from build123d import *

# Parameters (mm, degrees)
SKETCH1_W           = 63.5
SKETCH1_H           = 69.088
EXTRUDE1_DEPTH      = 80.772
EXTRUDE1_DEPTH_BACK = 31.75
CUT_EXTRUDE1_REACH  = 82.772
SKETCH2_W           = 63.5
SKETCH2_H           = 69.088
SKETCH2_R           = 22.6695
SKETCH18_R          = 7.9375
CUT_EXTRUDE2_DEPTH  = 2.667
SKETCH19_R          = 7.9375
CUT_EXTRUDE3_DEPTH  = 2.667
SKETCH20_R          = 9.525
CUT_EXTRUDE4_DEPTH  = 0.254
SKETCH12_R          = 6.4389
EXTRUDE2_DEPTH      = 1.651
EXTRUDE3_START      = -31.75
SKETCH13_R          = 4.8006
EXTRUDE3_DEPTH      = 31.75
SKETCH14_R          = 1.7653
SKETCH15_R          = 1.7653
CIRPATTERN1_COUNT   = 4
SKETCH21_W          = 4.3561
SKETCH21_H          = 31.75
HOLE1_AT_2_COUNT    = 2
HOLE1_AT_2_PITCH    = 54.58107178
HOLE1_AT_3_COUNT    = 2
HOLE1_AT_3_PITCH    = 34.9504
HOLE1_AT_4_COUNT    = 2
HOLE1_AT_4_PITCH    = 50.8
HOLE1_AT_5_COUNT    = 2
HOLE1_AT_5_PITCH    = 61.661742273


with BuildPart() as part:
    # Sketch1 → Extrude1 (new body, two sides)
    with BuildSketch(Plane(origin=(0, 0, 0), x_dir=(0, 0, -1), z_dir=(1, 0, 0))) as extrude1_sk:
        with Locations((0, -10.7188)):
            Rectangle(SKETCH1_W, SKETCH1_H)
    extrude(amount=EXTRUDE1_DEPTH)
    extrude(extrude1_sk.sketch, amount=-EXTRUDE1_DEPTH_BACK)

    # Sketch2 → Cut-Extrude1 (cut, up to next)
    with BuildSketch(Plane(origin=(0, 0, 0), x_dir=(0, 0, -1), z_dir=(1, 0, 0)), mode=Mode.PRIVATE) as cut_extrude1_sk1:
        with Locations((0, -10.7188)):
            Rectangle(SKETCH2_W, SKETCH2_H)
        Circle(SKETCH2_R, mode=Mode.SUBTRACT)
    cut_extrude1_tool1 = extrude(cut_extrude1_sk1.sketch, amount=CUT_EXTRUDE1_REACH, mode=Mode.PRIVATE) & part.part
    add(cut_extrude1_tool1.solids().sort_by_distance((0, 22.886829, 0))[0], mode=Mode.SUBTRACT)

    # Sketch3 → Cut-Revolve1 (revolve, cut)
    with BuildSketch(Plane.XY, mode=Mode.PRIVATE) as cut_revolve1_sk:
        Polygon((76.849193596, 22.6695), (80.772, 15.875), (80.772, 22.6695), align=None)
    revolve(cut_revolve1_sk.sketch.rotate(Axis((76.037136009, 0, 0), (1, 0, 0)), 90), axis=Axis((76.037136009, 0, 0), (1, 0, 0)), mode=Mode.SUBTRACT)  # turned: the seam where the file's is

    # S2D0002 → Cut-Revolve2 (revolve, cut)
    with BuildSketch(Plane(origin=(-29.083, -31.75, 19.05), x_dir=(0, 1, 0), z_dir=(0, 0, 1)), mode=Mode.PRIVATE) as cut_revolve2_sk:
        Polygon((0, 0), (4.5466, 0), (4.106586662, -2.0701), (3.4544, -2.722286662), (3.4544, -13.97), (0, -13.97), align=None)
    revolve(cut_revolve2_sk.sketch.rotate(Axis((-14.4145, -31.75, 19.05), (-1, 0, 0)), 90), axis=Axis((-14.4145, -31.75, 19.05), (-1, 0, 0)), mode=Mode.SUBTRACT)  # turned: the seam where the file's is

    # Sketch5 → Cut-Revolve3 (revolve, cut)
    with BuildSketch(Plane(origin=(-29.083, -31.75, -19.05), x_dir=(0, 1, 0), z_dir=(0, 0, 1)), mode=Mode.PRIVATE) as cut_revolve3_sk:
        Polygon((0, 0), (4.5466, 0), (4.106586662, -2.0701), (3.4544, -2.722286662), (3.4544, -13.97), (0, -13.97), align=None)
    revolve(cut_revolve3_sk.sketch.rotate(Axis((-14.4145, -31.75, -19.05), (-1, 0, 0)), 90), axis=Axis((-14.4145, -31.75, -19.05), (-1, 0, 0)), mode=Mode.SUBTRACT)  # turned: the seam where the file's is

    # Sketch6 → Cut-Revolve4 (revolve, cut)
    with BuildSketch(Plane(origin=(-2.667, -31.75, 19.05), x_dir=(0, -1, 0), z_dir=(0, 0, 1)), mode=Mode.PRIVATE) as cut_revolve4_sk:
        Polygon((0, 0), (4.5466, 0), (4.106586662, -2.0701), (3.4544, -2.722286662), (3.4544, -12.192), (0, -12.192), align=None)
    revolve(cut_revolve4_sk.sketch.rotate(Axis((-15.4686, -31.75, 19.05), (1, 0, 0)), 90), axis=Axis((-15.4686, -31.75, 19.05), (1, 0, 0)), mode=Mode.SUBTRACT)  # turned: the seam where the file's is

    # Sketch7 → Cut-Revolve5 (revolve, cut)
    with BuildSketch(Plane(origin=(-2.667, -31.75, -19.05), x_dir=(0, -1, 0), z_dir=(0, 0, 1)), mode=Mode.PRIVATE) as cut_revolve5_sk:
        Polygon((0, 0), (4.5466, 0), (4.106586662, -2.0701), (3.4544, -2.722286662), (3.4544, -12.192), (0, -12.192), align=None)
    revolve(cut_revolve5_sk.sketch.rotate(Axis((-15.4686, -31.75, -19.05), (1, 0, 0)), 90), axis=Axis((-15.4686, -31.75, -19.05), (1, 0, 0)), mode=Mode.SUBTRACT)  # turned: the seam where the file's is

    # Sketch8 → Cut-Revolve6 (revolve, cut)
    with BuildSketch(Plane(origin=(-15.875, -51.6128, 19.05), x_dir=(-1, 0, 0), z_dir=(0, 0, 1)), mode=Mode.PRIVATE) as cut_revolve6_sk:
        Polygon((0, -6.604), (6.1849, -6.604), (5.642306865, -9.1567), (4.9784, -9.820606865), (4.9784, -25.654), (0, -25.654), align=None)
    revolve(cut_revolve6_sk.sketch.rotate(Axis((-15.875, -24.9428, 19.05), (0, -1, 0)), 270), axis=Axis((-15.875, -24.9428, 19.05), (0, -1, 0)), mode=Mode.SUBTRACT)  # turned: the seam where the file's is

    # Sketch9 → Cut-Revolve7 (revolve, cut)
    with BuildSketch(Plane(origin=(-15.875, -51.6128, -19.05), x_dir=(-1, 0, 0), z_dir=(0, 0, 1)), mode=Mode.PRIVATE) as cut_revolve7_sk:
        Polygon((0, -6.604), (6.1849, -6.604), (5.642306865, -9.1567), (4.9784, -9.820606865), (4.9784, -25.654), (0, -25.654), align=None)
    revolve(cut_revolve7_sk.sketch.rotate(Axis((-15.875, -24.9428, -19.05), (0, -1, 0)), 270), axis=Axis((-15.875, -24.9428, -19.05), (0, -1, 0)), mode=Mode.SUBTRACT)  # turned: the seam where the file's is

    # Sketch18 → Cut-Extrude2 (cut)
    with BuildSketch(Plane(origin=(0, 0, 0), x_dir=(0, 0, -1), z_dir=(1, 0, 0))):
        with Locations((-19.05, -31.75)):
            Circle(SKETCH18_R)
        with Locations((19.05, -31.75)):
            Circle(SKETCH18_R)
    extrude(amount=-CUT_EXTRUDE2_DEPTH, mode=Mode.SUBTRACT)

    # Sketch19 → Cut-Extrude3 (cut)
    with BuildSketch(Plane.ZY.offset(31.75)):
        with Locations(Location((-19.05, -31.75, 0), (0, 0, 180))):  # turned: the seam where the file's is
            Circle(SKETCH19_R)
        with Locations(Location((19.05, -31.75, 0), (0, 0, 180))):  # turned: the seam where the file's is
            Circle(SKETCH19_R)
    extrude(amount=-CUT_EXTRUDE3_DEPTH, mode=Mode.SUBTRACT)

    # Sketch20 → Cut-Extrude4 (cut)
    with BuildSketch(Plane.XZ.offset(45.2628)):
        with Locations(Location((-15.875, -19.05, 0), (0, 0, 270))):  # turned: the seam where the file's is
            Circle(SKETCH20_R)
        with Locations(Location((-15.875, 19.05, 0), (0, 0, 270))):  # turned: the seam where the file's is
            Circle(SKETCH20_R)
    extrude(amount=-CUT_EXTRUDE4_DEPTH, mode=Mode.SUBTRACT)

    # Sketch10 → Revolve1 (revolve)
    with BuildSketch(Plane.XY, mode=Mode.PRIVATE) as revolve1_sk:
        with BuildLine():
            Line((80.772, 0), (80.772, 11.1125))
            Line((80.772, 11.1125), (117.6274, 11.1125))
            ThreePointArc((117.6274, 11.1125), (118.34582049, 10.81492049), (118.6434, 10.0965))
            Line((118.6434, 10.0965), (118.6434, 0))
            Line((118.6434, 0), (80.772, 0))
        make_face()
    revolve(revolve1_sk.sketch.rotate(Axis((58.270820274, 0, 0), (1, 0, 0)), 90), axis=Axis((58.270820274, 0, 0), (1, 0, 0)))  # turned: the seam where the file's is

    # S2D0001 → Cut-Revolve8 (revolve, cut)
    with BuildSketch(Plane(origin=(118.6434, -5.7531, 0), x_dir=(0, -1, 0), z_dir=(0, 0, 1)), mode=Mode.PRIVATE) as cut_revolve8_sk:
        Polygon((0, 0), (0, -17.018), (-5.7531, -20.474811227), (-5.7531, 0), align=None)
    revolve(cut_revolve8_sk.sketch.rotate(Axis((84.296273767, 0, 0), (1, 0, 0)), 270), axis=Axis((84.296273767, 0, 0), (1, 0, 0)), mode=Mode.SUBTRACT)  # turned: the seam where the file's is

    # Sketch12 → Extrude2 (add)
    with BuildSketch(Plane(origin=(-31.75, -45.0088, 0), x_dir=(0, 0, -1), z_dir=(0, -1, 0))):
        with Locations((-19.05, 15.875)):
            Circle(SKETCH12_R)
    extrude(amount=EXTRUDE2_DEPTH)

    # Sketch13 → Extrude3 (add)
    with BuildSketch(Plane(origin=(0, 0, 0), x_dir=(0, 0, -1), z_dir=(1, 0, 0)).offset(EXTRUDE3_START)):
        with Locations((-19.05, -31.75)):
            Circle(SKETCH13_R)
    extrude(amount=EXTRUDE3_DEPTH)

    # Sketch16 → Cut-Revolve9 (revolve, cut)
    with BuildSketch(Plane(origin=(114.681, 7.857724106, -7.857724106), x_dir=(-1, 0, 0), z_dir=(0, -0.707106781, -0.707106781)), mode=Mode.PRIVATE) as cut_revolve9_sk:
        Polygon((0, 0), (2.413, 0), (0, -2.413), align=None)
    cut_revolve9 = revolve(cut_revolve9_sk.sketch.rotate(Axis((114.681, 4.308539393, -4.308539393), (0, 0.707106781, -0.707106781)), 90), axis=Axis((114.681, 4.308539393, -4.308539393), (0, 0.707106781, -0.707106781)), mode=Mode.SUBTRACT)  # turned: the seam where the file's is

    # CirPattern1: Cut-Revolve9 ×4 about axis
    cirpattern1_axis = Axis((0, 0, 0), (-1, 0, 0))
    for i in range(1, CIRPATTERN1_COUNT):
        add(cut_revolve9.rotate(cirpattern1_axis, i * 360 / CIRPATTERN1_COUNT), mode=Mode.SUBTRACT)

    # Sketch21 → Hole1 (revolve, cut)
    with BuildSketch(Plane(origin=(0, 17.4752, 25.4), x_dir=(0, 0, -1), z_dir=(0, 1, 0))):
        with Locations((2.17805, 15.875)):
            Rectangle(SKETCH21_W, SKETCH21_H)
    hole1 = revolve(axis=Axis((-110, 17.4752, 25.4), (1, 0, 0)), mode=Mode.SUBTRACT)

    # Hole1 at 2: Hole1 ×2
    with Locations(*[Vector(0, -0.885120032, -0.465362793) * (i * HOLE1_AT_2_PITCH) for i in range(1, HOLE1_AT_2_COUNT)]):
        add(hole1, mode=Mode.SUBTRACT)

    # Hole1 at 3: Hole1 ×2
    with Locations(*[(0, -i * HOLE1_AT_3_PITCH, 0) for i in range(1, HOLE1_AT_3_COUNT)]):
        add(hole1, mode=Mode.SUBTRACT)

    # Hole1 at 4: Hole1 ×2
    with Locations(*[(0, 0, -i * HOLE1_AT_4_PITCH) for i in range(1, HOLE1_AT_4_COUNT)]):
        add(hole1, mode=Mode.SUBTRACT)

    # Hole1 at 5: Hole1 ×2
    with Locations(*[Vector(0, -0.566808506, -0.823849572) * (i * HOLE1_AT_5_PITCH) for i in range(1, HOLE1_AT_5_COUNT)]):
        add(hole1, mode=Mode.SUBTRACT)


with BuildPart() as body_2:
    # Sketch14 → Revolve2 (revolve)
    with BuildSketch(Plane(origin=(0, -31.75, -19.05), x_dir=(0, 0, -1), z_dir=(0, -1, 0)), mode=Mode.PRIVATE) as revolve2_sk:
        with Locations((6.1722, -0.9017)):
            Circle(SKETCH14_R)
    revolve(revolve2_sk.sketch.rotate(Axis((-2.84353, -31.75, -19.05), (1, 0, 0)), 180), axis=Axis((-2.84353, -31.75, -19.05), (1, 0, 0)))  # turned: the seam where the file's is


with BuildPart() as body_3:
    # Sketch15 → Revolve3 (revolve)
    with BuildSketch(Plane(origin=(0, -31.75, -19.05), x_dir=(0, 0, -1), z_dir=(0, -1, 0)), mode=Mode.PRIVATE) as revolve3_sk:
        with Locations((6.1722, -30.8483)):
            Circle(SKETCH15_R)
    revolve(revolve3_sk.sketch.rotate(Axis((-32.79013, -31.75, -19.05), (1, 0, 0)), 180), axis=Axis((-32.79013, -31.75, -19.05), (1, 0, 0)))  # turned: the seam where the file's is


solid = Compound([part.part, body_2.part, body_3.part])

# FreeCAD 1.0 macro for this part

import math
import FreeCAD as App
import Part
import Sketcher
from FreeCAD import Vector
Q = App.Units.Quantity

doc = App.newDocument("Part")
body = doc.addObject("PartDesign::Body", "Body")

# Sketch on YZ plane
sketch1 = doc.addObject("Sketcher::SketchObject", "Sketch")
body.addObject(sketch1)
sketch1.AttachmentSupport = (doc.YZ_Plane, [""])
sketch1.MapMode = "FlatFace"
sketch1.addGeometry(Part.LineSegment(Vector(24, 32, 0), Vector(-45, 32, 0)), False)
sketch1.addGeometry(Part.LineSegment(Vector(-45, 32, 0), Vector(-45, -32, 0)), False)
sketch1.addGeometry(Part.LineSegment(Vector(-45, -32, 0), Vector(24, -32, 0)), False)
sketch1.addGeometry(Part.LineSegment(Vector(24, -32, 0), Vector(24, 32, 0)), False)
sketch1.addConstraint(Sketcher.Constraint("Coincident", 0, 2, 1, 1))
sketch1.addConstraint(Sketcher.Constraint("Coincident", 1, 2, 2, 1))
sketch1.addConstraint(Sketcher.Constraint("Coincident", 2, 2, 3, 1))
sketch1.addConstraint(Sketcher.Constraint("Coincident", 3, 2, 0, 1))
sketch1.addConstraint(Sketcher.Constraint("Horizontal", 0))
sketch1.addConstraint(Sketcher.Constraint("Vertical", 1))
sketch1.addConstraint(Sketcher.Constraint("Horizontal", 2))
sketch1.addConstraint(Sketcher.Constraint("Vertical", 3))
sketch1.addConstraint(Sketcher.Constraint("DistanceY", 1, 2, 1, 1, Q("2.5 in")))
sketch1.addConstraint(Sketcher.Constraint("DistanceX", 0, 2, 0, 1, Q("2.72 in")))
sketch1.addConstraint(Sketcher.Constraint("DistanceY", -1, 1, 0, 2, Q("1.25 in")))
sketch1.addConstraint(Sketcher.Constraint("DistanceX", 0, 2, -1, 1, Q("1.782 in")))
pad1 = doc.addObject("PartDesign::Pad", "Pad")
body.addObject(pad1)
pad1.Profile = sketch1
pad1.Type = "TwoLengths"
pad1.Length = Q("3.18 in")
pad1.Length2 = Q("1.25 in")

# Sketch on YZ plane
sketch2 = doc.addObject("Sketcher::SketchObject", "Sketch001")
body.addObject(sketch2)
sketch2.AttachmentSupport = (doc.YZ_Plane, [""])
sketch2.MapMode = "FlatFace"
sketch2.addGeometry(Part.LineSegment(Vector(24, 32, 0), Vector(-45, 32, 0)), False)
sketch2.addGeometry(Part.LineSegment(Vector(-45, 32, 0), Vector(-45, -32, 0)), False)
sketch2.addGeometry(Part.LineSegment(Vector(-45, -32, 0), Vector(24, -32, 0)), False)
sketch2.addGeometry(Part.LineSegment(Vector(24, -32, 0), Vector(24, 32, 0)), False)
sketch2.addGeometry(Part.Circle(Vector(0, 0, 0), Vector(0, 0, 1), 23), False)
sketch2.addConstraint(Sketcher.Constraint("Coincident", 0, 2, 1, 1))
sketch2.addConstraint(Sketcher.Constraint("Coincident", 1, 2, 2, 1))
sketch2.addConstraint(Sketcher.Constraint("Coincident", 2, 2, 3, 1))
sketch2.addConstraint(Sketcher.Constraint("Coincident", 3, 2, 0, 1))
sketch2.addConstraint(Sketcher.Constraint("Horizontal", 0))
sketch2.addConstraint(Sketcher.Constraint("Vertical", 1))
sketch2.addConstraint(Sketcher.Constraint("Horizontal", 2))
sketch2.addConstraint(Sketcher.Constraint("Vertical", 3))
sketch2.addConstraint(Sketcher.Constraint("Coincident", 4, 3, -1, 1))
sketch2.addConstraint(Sketcher.Constraint("Diameter", 4, Q("1.785 in")))
sketch2.addConstraint(Sketcher.Constraint("DistanceY", 1, 2, 1, 1, Q("2.5 in")))
sketch2.addConstraint(Sketcher.Constraint("DistanceX", 0, 2, 0, 1, Q("2.72 in")))
sketch2.addConstraint(Sketcher.Constraint("DistanceY", -1, 1, 0, 2, Q("1.25 in")))
sketch2.addConstraint(Sketcher.Constraint("DistanceX", 0, 2, -1, 1, Q("1.782 in")))
pocket1 = doc.addObject("PartDesign::Pocket", "Pocket")
body.addObject(pocket1)
pocket1.Profile = sketch2
pocket1.Type = "UpToFirst"
pocket1.Reversed = True

# Sketch on XY plane
sketch3 = doc.addObject("Sketcher::SketchObject", "Sketch002")
body.addObject(sketch3)
sketch3.AttachmentSupport = (doc.XY_Plane, [""])
sketch3.MapMode = "FlatFace"
sketch3.addGeometry(Part.LineSegment(Vector(76.8, 22.7, 0), Vector(80.8, 15.9, 0)), False)
sketch3.addGeometry(Part.LineSegment(Vector(80.8, 15.9, 0), Vector(80.8, 22.7, 0)), False)
sketch3.addGeometry(Part.LineSegment(Vector(80.8, 22.7, 0), Vector(76.8, 22.7, 0)), False)
sketch3.addConstraint(Sketcher.Constraint("Coincident", 0, 2, 1, 1))
sketch3.addConstraint(Sketcher.Constraint("Coincident", 1, 2, 2, 1))
sketch3.addConstraint(Sketcher.Constraint("Coincident", 2, 2, 0, 1))
sketch3.addConstraint(Sketcher.Constraint("Vertical", 1))
sketch3.addConstraint(Sketcher.Constraint("Horizontal", 2))
sketch3.addConstraint(Sketcher.Constraint("Angle", 0, Q("-60 deg")))
sketch3.addConstraint(Sketcher.Constraint("DistanceX", -1, 1, 0, 2, Q("3.18 in")))
sketch3.addConstraint(Sketcher.Constraint("DistanceY", 1, 1, 1, 2, Q("0.2675 in")))
sketch3.addConstraint(Sketcher.Constraint("DistanceY", -1, 1, 0, 2, Q("0.625 in")))
groove = doc.addObject("PartDesign::Groove", "Groove")
body.addObject(groove)
groove.Profile = sketch3
groove.ReferenceAxis = (sketch3, ["H_Axis"])
groove.Angle = 360

# Sketch on XY plane
sketch4 = doc.addObject("Sketcher::SketchObject", "Sketch003")
body.addObject(sketch4)
sketch4.AttachmentSupport = (doc.XY_Plane, [""])
sketch4.MapMode = "FlatFace"
sketch4.AttachmentOffset = App.Placement(Vector(0, 0, 0.75 * 25.4), App.Rotation())
sketch4.addGeometry(Part.LineSegment(Vector(-29.1, -27.2, 0), Vector(-29.1, -31.8, 0)), False)
sketch4.addGeometry(Part.LineSegment(Vector(-29.1, -31.8, 0), Vector(-15.1, -31.8, 0)), False)
sketch4.addGeometry(Part.LineSegment(Vector(-15.1, -31.8, 0), Vector(-15.1, -28.3, 0)), False)
sketch4.addGeometry(Part.LineSegment(Vector(-15.1, -28.3, 0), Vector(-26.4, -28.3, 0)), False)
sketch4.addGeometry(Part.LineSegment(Vector(-26.4, -28.3, 0), Vector(-27, -27.6, 0)), False)
sketch4.addGeometry(Part.LineSegment(Vector(-27, -27.6, 0), Vector(-29.1, -27.2, 0)), False)
sketch4.addGeometry(Part.LineSegment(Vector(-15.1, -31.8, 0), Vector(-29.1, -31.8, 0)), True)  # axis
sketch4.addConstraint(Sketcher.Constraint("Coincident", 0, 2, 1, 1))
sketch4.addConstraint(Sketcher.Constraint("Coincident", 1, 2, 2, 1))
sketch4.addConstraint(Sketcher.Constraint("Coincident", 2, 2, 3, 1))
sketch4.addConstraint(Sketcher.Constraint("Coincident", 3, 2, 4, 1))
sketch4.addConstraint(Sketcher.Constraint("Coincident", 4, 2, 5, 1))
sketch4.addConstraint(Sketcher.Constraint("Coincident", 5, 2, 0, 1))
sketch4.addConstraint(Sketcher.Constraint("Vertical", 0))
sketch4.addConstraint(Sketcher.Constraint("Horizontal", 1))
sketch4.addConstraint(Sketcher.Constraint("Vertical", 2))
sketch4.addConstraint(Sketcher.Constraint("Horizontal", 3))
sketch4.addConstraint(Sketcher.Constraint("Horizontal", 6))
sketch4.addConstraint(Sketcher.Constraint("Coincident", 6, 1, 1, 2))
sketch4.addConstraint(Sketcher.Constraint("Vertical", 5, 2, 6, 2))
sketch4.addConstraint(Sketcher.Constraint("Angle", 4, Q("135 deg")))
sketch4.addConstraint(Sketcher.Constraint("Angle", 5, Q("168 deg")))
sketch4.addConstraint(Sketcher.Constraint("DistanceX", 1, 1, 1, 2, Q("0.55 in")))
sketch4.addConstraint(Sketcher.Constraint("DistanceY", 0, 2, 0, 1, Q("0.179 in")))
sketch4.addConstraint(Sketcher.Constraint("DistanceY", 2, 1, 2, 2, Q("0.136 in")))
sketch4.addConstraint(Sketcher.Constraint("DistanceY", 0, 2, -1, 1, Q("1.25 in")))
sketch4.addConstraint(Sketcher.Constraint("DistanceX", 0, 2, -1, 1, Q("1.145 in")))
sketch4.addConstraint(Sketcher.Constraint("DistanceX", 4, 2, -1, 1, Q("1.0635 in")))
groove2 = doc.addObject("PartDesign::Groove", "Groove001")
body.addObject(groove2)
groove2.Profile = sketch4
groove2.ReferenceAxis = (sketch4, ["Axis0"])
groove2.Angle = 360

# Sketch on XY plane
sketch5 = doc.addObject("Sketcher::SketchObject", "Sketch004")
body.addObject(sketch5)
sketch5.AttachmentSupport = (doc.XY_Plane, [""])
sketch5.MapMode = "FlatFace"
sketch5.AttachmentOffset = App.Placement(Vector(0, 0, -0.75 * 25.4), App.Rotation())
sketch5.addGeometry(Part.LineSegment(Vector(-29.1, -27.2, 0), Vector(-29.1, -31.8, 0)), False)
sketch5.addGeometry(Part.LineSegment(Vector(-29.1, -31.8, 0), Vector(-15.1, -31.8, 0)), False)
sketch5.addGeometry(Part.LineSegment(Vector(-15.1, -31.8, 0), Vector(-15.1, -28.3, 0)), False)
sketch5.addGeometry(Part.LineSegment(Vector(-15.1, -28.3, 0), Vector(-26.4, -28.3, 0)), False)
sketch5.addGeometry(Part.LineSegment(Vector(-26.4, -28.3, 0), Vector(-27, -27.6, 0)), False)
sketch5.addGeometry(Part.LineSegment(Vector(-27, -27.6, 0), Vector(-29.1, -27.2, 0)), False)
sketch5.addGeometry(Part.LineSegment(Vector(-15.1, -31.8, 0), Vector(-29.1, -31.8, 0)), True)  # axis
sketch5.addConstraint(Sketcher.Constraint("Coincident", 0, 2, 1, 1))
sketch5.addConstraint(Sketcher.Constraint("Coincident", 1, 2, 2, 1))
sketch5.addConstraint(Sketcher.Constraint("Coincident", 2, 2, 3, 1))
sketch5.addConstraint(Sketcher.Constraint("Coincident", 3, 2, 4, 1))
sketch5.addConstraint(Sketcher.Constraint("Coincident", 4, 2, 5, 1))
sketch5.addConstraint(Sketcher.Constraint("Coincident", 5, 2, 0, 1))
sketch5.addConstraint(Sketcher.Constraint("Vertical", 0))
sketch5.addConstraint(Sketcher.Constraint("Horizontal", 1))
sketch5.addConstraint(Sketcher.Constraint("Vertical", 2))
sketch5.addConstraint(Sketcher.Constraint("Horizontal", 3))
sketch5.addConstraint(Sketcher.Constraint("Horizontal", 6))
sketch5.addConstraint(Sketcher.Constraint("Coincident", 6, 1, 1, 2))
sketch5.addConstraint(Sketcher.Constraint("Vertical", 5, 2, 6, 2))
sketch5.addConstraint(Sketcher.Constraint("Angle", 4, Q("135 deg")))
sketch5.addConstraint(Sketcher.Constraint("Angle", 5, Q("168 deg")))
sketch5.addConstraint(Sketcher.Constraint("DistanceX", 1, 1, 1, 2, Q("0.55 in")))
sketch5.addConstraint(Sketcher.Constraint("DistanceY", 0, 2, 0, 1, Q("0.179 in")))
sketch5.addConstraint(Sketcher.Constraint("DistanceY", 2, 1, 2, 2, Q("0.136 in")))
sketch5.addConstraint(Sketcher.Constraint("DistanceY", 0, 2, -1, 1, Q("1.25 in")))
sketch5.addConstraint(Sketcher.Constraint("DistanceX", 0, 2, -1, 1, Q("1.145 in")))
sketch5.addConstraint(Sketcher.Constraint("DistanceX", 4, 2, -1, 1, Q("1.0635 in")))
groove3 = doc.addObject("PartDesign::Groove", "Groove002")
body.addObject(groove3)
groove3.Profile = sketch5
groove3.ReferenceAxis = (sketch5, ["Axis0"])
groove3.Angle = 360

# Sketch on XY plane
sketch6 = doc.addObject("Sketcher::SketchObject", "Sketch005")
body.addObject(sketch6)
sketch6.AttachmentSupport = (doc.XY_Plane, [""])
sketch6.MapMode = "FlatFace"
sketch6.AttachmentOffset = App.Placement(Vector(0, 0, 0.75 * 25.4), App.Rotation())
sketch6.addGeometry(Part.LineSegment(Vector(-2.7, -36.3, 0), Vector(-2.7, -31.8, 0)), False)
sketch6.addGeometry(Part.LineSegment(Vector(-2.7, -31.8, 0), Vector(-14.9, -31.8, 0)), False)
sketch6.addGeometry(Part.LineSegment(Vector(-14.9, -31.8, 0), Vector(-14.9, -35.2, 0)), False)
sketch6.addGeometry(Part.LineSegment(Vector(-14.9, -35.2, 0), Vector(-5.4, -35.2, 0)), False)
sketch6.addGeometry(Part.LineSegment(Vector(-5.4, -35.2, 0), Vector(-4.7, -35.9, 0)), False)
sketch6.addGeometry(Part.LineSegment(Vector(-4.7, -35.9, 0), Vector(-2.7, -36.3, 0)), False)
sketch6.addGeometry(Part.LineSegment(Vector(-14.9, -31.8, 0), Vector(-2.7, -31.8, 0)), True)  # axis
sketch6.addConstraint(Sketcher.Constraint("Coincident", 0, 2, 1, 1))
sketch6.addConstraint(Sketcher.Constraint("Coincident", 1, 2, 2, 1))
sketch6.addConstraint(Sketcher.Constraint("Coincident", 2, 2, 3, 1))
sketch6.addConstraint(Sketcher.Constraint("Coincident", 3, 2, 4, 1))
sketch6.addConstraint(Sketcher.Constraint("Coincident", 4, 2, 5, 1))
sketch6.addConstraint(Sketcher.Constraint("Coincident", 5, 2, 0, 1))
sketch6.addConstraint(Sketcher.Constraint("Vertical", 0))
sketch6.addConstraint(Sketcher.Constraint("Horizontal", 1))
sketch6.addConstraint(Sketcher.Constraint("Vertical", 2))
sketch6.addConstraint(Sketcher.Constraint("Horizontal", 3))
sketch6.addConstraint(Sketcher.Constraint("Horizontal", 6))
sketch6.addConstraint(Sketcher.Constraint("Coincident", 6, 1, 1, 2))
sketch6.addConstraint(Sketcher.Constraint("Vertical", 5, 2, 6, 2))
sketch6.addConstraint(Sketcher.Constraint("Angle", 4, Q("-45 deg")))
sketch6.addConstraint(Sketcher.Constraint("Angle", 5, Q("-12 deg")))
sketch6.addConstraint(Sketcher.Constraint("DistanceX", 1, 2, 1, 1, Q("0.48 in")))
sketch6.addConstraint(Sketcher.Constraint("DistanceY", 0, 1, 0, 2, Q("0.179 in")))
sketch6.addConstraint(Sketcher.Constraint("DistanceY", 2, 2, 2, 1, Q("0.136 in")))
sketch6.addConstraint(Sketcher.Constraint("DistanceY", 0, 2, -1, 1, Q("1.25 in")))
sketch6.addConstraint(Sketcher.Constraint("DistanceX", 0, 2, -1, 1, Q("0.105 in")))
sketch6.addConstraint(Sketcher.Constraint("DistanceX", 4, 2, -1, 1, Q("0.1865 in")))
groove4 = doc.addObject("PartDesign::Groove", "Groove003")
body.addObject(groove4)
groove4.Profile = sketch6
groove4.ReferenceAxis = (sketch6, ["Axis0"])
groove4.Angle = 360

# Sketch on XY plane
sketch7 = doc.addObject("Sketcher::SketchObject", "Sketch006")
body.addObject(sketch7)
sketch7.AttachmentSupport = (doc.XY_Plane, [""])
sketch7.MapMode = "FlatFace"
sketch7.AttachmentOffset = App.Placement(Vector(0, 0, -0.75 * 25.4), App.Rotation())
sketch7.addGeometry(Part.LineSegment(Vector(-2.7, -36.3, 0), Vector(-2.7, -31.8, 0)), False)
sketch7.addGeometry(Part.LineSegment(Vector(-2.7, -31.8, 0), Vector(-14.9, -31.8, 0)), False)
sketch7.addGeometry(Part.LineSegment(Vector(-14.9, -31.8, 0), Vector(-14.9, -35.2, 0)), False)
sketch7.addGeometry(Part.LineSegment(Vector(-14.9, -35.2, 0), Vector(-5.4, -35.2, 0)), False)
sketch7.addGeometry(Part.LineSegment(Vector(-5.4, -35.2, 0), Vector(-4.7, -35.9, 0)), False)
sketch7.addGeometry(Part.LineSegment(Vector(-4.7, -35.9, 0), Vector(-2.7, -36.3, 0)), False)
sketch7.addGeometry(Part.LineSegment(Vector(-14.9, -31.8, 0), Vector(-2.7, -31.8, 0)), True)  # axis
sketch7.addConstraint(Sketcher.Constraint("Coincident", 0, 2, 1, 1))
sketch7.addConstraint(Sketcher.Constraint("Coincident", 1, 2, 2, 1))
sketch7.addConstraint(Sketcher.Constraint("Coincident", 2, 2, 3, 1))
sketch7.addConstraint(Sketcher.Constraint("Coincident", 3, 2, 4, 1))
sketch7.addConstraint(Sketcher.Constraint("Coincident", 4, 2, 5, 1))
sketch7.addConstraint(Sketcher.Constraint("Coincident", 5, 2, 0, 1))
sketch7.addConstraint(Sketcher.Constraint("Vertical", 0))
sketch7.addConstraint(Sketcher.Constraint("Horizontal", 1))
sketch7.addConstraint(Sketcher.Constraint("Vertical", 2))
sketch7.addConstraint(Sketcher.Constraint("Horizontal", 3))
sketch7.addConstraint(Sketcher.Constraint("Horizontal", 6))
sketch7.addConstraint(Sketcher.Constraint("Coincident", 6, 1, 1, 2))
sketch7.addConstraint(Sketcher.Constraint("Vertical", 5, 2, 6, 2))
sketch7.addConstraint(Sketcher.Constraint("Angle", 4, Q("-45 deg")))
sketch7.addConstraint(Sketcher.Constraint("Angle", 5, Q("-12 deg")))
sketch7.addConstraint(Sketcher.Constraint("DistanceX", 1, 2, 1, 1, Q("0.48 in")))
sketch7.addConstraint(Sketcher.Constraint("DistanceY", 0, 1, 0, 2, Q("0.179 in")))
sketch7.addConstraint(Sketcher.Constraint("DistanceY", 2, 2, 2, 1, Q("0.136 in")))
sketch7.addConstraint(Sketcher.Constraint("DistanceY", 0, 2, -1, 1, Q("1.25 in")))
sketch7.addConstraint(Sketcher.Constraint("DistanceX", 0, 2, -1, 1, Q("0.105 in")))
sketch7.addConstraint(Sketcher.Constraint("DistanceX", 4, 2, -1, 1, Q("0.1865 in")))
groove5 = doc.addObject("PartDesign::Groove", "Groove004")
body.addObject(groove5)
groove5.Profile = sketch7
groove5.ReferenceAxis = (sketch7, ["Axis0"])
groove5.Angle = 360

# Sketch on XY plane
sketch8 = doc.addObject("Sketcher::SketchObject", "Sketch007")
body.addObject(sketch8)
sketch8.AttachmentSupport = (doc.XY_Plane, [""])
sketch8.MapMode = "FlatFace"
sketch8.AttachmentOffset = App.Placement(Vector(0, 0, 0.75 * 25.4), App.Rotation())
sketch8.addGeometry(Part.LineSegment(Vector(-22.1, -45, 0), Vector(-15.9, -45, 0)), False)
sketch8.addGeometry(Part.LineSegment(Vector(-15.9, -45, 0), Vector(-15.9, -26, 0)), False)
sketch8.addGeometry(Part.LineSegment(Vector(-15.9, -26, 0), Vector(-20.9, -26, 0)), False)
sketch8.addGeometry(Part.LineSegment(Vector(-20.9, -26, 0), Vector(-20.9, -41.8, 0)), False)
sketch8.addGeometry(Part.LineSegment(Vector(-20.9, -41.8, 0), Vector(-21.5, -42.5, 0)), False)
sketch8.addGeometry(Part.LineSegment(Vector(-21.5, -42.5, 0), Vector(-22.1, -45, 0)), False)
sketch8.addGeometry(Part.LineSegment(Vector(-15.9, -26, 0), Vector(-15.9, -45, 0)), True)  # axis
sketch8.addConstraint(Sketcher.Constraint("Coincident", 0, 2, 1, 1))
sketch8.addConstraint(Sketcher.Constraint("Coincident", 1, 2, 2, 1))
sketch8.addConstraint(Sketcher.Constraint("Coincident", 2, 2, 3, 1))
sketch8.addConstraint(Sketcher.Constraint("Coincident", 3, 2, 4, 1))
sketch8.addConstraint(Sketcher.Constraint("Coincident", 4, 2, 5, 1))
sketch8.addConstraint(Sketcher.Constraint("Coincident", 5, 2, 0, 1))
sketch8.addConstraint(Sketcher.Constraint("Horizontal", 0))
sketch8.addConstraint(Sketcher.Constraint("Vertical", 1))
sketch8.addConstraint(Sketcher.Constraint("Horizontal", 2))
sketch8.addConstraint(Sketcher.Constraint("Vertical", 3))
sketch8.addConstraint(Sketcher.Constraint("Vertical", 6))
sketch8.addConstraint(Sketcher.Constraint("Coincident", 6, 1, 1, 2))
sketch8.addConstraint(Sketcher.Constraint("Horizontal", 5, 2, 6, 2))
sketch8.addConstraint(Sketcher.Constraint("Angle", 4, Q("-135 deg")))
sketch8.addConstraint(Sketcher.Constraint("Angle", 5, Q("-102 deg")))
sketch8.addConstraint(Sketcher.Constraint("DistanceY", 1, 1, 1, 2, Q("0.75 in")))
sketch8.addConstraint(Sketcher.Constraint("DistanceX", 2, 2, 2, 1, Q("0.196 in")))
sketch8.addConstraint(Sketcher.Constraint("DistanceX", 0, 1, 0, 2, Q("0.2435 in")))
sketch8.addConstraint(Sketcher.Constraint("DistanceX", 0, 2, -1, 1, Q("0.625 in")))
sketch8.addConstraint(Sketcher.Constraint("DistanceY", 0, 2, -1, 1, Q("1.772 in")))
sketch8.addConstraint(Sketcher.Constraint("DistanceY", 4, 2, -1, 1, Q("1.6715 in")))
groove6 = doc.addObject("PartDesign::Groove", "Groove005")
body.addObject(groove6)
groove6.Profile = sketch8
groove6.ReferenceAxis = (sketch8, ["Axis0"])
groove6.Angle = 360

# Sketch on XY plane
sketch9 = doc.addObject("Sketcher::SketchObject", "Sketch008")
body.addObject(sketch9)
sketch9.AttachmentSupport = (doc.XY_Plane, [""])
sketch9.MapMode = "FlatFace"
sketch9.AttachmentOffset = App.Placement(Vector(0, 0, -0.75 * 25.4), App.Rotation())
sketch9.addGeometry(Part.LineSegment(Vector(-22.1, -45, 0), Vector(-15.9, -45, 0)), False)
sketch9.addGeometry(Part.LineSegment(Vector(-15.9, -45, 0), Vector(-15.9, -26, 0)), False)
sketch9.addGeometry(Part.LineSegment(Vector(-15.9, -26, 0), Vector(-20.9, -26, 0)), False)
sketch9.addGeometry(Part.LineSegment(Vector(-20.9, -26, 0), Vector(-20.9, -41.8, 0)), False)
sketch9.addGeometry(Part.LineSegment(Vector(-20.9, -41.8, 0), Vector(-21.5, -42.5, 0)), False)
sketch9.addGeometry(Part.LineSegment(Vector(-21.5, -42.5, 0), Vector(-22.1, -45, 0)), False)
sketch9.addGeometry(Part.LineSegment(Vector(-15.9, -26, 0), Vector(-15.9, -45, 0)), True)  # axis
sketch9.addConstraint(Sketcher.Constraint("Coincident", 0, 2, 1, 1))
sketch9.addConstraint(Sketcher.Constraint("Coincident", 1, 2, 2, 1))
sketch9.addConstraint(Sketcher.Constraint("Coincident", 2, 2, 3, 1))
sketch9.addConstraint(Sketcher.Constraint("Coincident", 3, 2, 4, 1))
sketch9.addConstraint(Sketcher.Constraint("Coincident", 4, 2, 5, 1))
sketch9.addConstraint(Sketcher.Constraint("Coincident", 5, 2, 0, 1))
sketch9.addConstraint(Sketcher.Constraint("Horizontal", 0))
sketch9.addConstraint(Sketcher.Constraint("Vertical", 1))
sketch9.addConstraint(Sketcher.Constraint("Horizontal", 2))
sketch9.addConstraint(Sketcher.Constraint("Vertical", 3))
sketch9.addConstraint(Sketcher.Constraint("Vertical", 6))
sketch9.addConstraint(Sketcher.Constraint("Coincident", 6, 1, 1, 2))
sketch9.addConstraint(Sketcher.Constraint("Horizontal", 5, 2, 6, 2))
sketch9.addConstraint(Sketcher.Constraint("Angle", 4, Q("-135 deg")))
sketch9.addConstraint(Sketcher.Constraint("Angle", 5, Q("-102 deg")))
sketch9.addConstraint(Sketcher.Constraint("DistanceY", 1, 1, 1, 2, Q("0.75 in")))
sketch9.addConstraint(Sketcher.Constraint("DistanceX", 2, 2, 2, 1, Q("0.196 in")))
sketch9.addConstraint(Sketcher.Constraint("DistanceX", 0, 1, 0, 2, Q("0.2435 in")))
sketch9.addConstraint(Sketcher.Constraint("DistanceX", 0, 2, -1, 1, Q("0.625 in")))
sketch9.addConstraint(Sketcher.Constraint("DistanceY", 0, 2, -1, 1, Q("1.772 in")))
sketch9.addConstraint(Sketcher.Constraint("DistanceY", 4, 2, -1, 1, Q("1.6715 in")))
groove7 = doc.addObject("PartDesign::Groove", "Groove006")
body.addObject(groove7)
groove7.Profile = sketch9
groove7.ReferenceAxis = (sketch9, ["Axis0"])
groove7.Angle = 360

# Sketch on YZ plane
sketch10 = doc.addObject("Sketcher::SketchObject", "Sketch009")
body.addObject(sketch10)
sketch10.AttachmentSupport = (doc.YZ_Plane, [""])
sketch10.MapMode = "FlatFace"
sketch10.addGeometry(Part.Circle(Vector(-32, 19, 0), Vector(0, 0, 1), 8), False)
sketch10.addGeometry(Part.Circle(Vector(-32, -19, 0), Vector(0, 0, 1), 8), False)
sketch10.addConstraint(Sketcher.Constraint("Equal", 0, 1))
sketch10.addConstraint(Sketcher.Constraint("Symmetric", 0, 3, 1, 3, -1))
sketch10.addConstraint(Sketcher.Constraint("Diameter", 0, Q("0.625 in")))
sketch10.addConstraint(Sketcher.Constraint("DistanceY", 1, 3, 0, 3, Q("1.5 in")))
sketch10.addConstraint(Sketcher.Constraint("DistanceX", 0, 3, -1, 1, Q("1.25 in")))
pocket2 = doc.addObject("PartDesign::Pocket", "Pocket001")
body.addObject(pocket2)
pocket2.Profile = sketch10
pocket2.Length = Q("0.105 in")

# Sketch on YZ plane
sketch11 = doc.addObject("Sketcher::SketchObject", "Sketch010")
body.addObject(sketch11)
sketch11.AttachmentSupport = (doc.YZ_Plane, [""])
sketch11.MapMode = "FlatFace"
sketch11.AttachmentOffset = App.Placement(Vector(0, 0, -1.25 * 25.4), App.Rotation())
sketch11.addGeometry(Part.Circle(Vector(-32, -19, 0), Vector(0, 0, 1), 8), False)
sketch11.addGeometry(Part.Circle(Vector(-32, 19, 0), Vector(0, 0, 1), 8), False)
sketch11.addConstraint(Sketcher.Constraint("Equal", 0, 1))
sketch11.addConstraint(Sketcher.Constraint("Symmetric", 0, 3, 1, 3, -1))
sketch11.addConstraint(Sketcher.Constraint("Diameter", 0, Q("0.625 in")))
sketch11.addConstraint(Sketcher.Constraint("DistanceY", 0, 3, 1, 3, Q("1.5 in")))
sketch11.addConstraint(Sketcher.Constraint("DistanceX", 0, 3, -1, 1, Q("1.25 in")))
pocket3 = doc.addObject("PartDesign::Pocket", "Pocket002")
body.addObject(pocket3)
pocket3.Profile = sketch11
pocket3.Length = Q("0.105 in")
pocket3.Reversed = True

# Sketch on XZ plane
sketch12 = doc.addObject("Sketcher::SketchObject", "Sketch011")
body.addObject(sketch12)
sketch12.AttachmentSupport = (doc.XZ_Plane, [""])
sketch12.MapMode = "FlatFace"
sketch12.AttachmentOffset = App.Placement(Vector(0, 0, 1.782 * 25.4), App.Rotation())
sketch12.addGeometry(Part.Circle(Vector(-16, -19, 0), Vector(0, 0, 1), 10), False)
sketch12.addGeometry(Part.Circle(Vector(-16, 19, 0), Vector(0, 0, 1), 10), False)
sketch12.addConstraint(Sketcher.Constraint("Equal", 0, 1))
sketch12.addConstraint(Sketcher.Constraint("Symmetric", 0, 3, 1, 3, -1))
sketch12.addConstraint(Sketcher.Constraint("Diameter", 0, Q("0.75 in")))
sketch12.addConstraint(Sketcher.Constraint("DistanceY", 0, 3, 1, 3, Q("1.5 in")))
sketch12.addConstraint(Sketcher.Constraint("DistanceX", 0, 3, -1, 1, Q("0.625 in")))
pocket4 = doc.addObject("PartDesign::Pocket", "Pocket003")
body.addObject(pocket4)
pocket4.Profile = sketch12
pocket4.Length = Q("0.01 in")

# Sketch on XY plane
sketch13 = doc.addObject("Sketcher::SketchObject", "Sketch012")
body.addObject(sketch13)
sketch13.AttachmentSupport = (doc.XY_Plane, [""])
sketch13.MapMode = "FlatFace"
sketch13.addGeometry(Part.LineSegment(Vector(80.8, 11.1, 0), Vector(80.8, 0, 0)), False)
sketch13.addGeometry(Part.LineSegment(Vector(80.8, 0, 0), Vector(118.6, 0, 0)), False)
sketch13.addGeometry(Part.LineSegment(Vector(118.6, 0, 0), Vector(118.6, 10.1, 0)), False)
sketch13.addGeometry(Part.ArcOfCircle(Part.Circle(Vector(117.6, 10.1, 0), Vector(0, 0, 1), 1), math.radians(0), math.radians(90)), False)
sketch13.addGeometry(Part.LineSegment(Vector(117.6, 11.1, 0), Vector(80.8, 11.1, 0)), False)
sketch13.addConstraint(Sketcher.Constraint("Coincident", 0, 2, 1, 1))
sketch13.addConstraint(Sketcher.Constraint("Coincident", 1, 2, 2, 1))
sketch13.addConstraint(Sketcher.Constraint("Tangent", 2, 2, 3, 1))
sketch13.addConstraint(Sketcher.Constraint("Tangent", 3, 2, 4, 1))
sketch13.addConstraint(Sketcher.Constraint("Coincident", 4, 2, 0, 1))
sketch13.addConstraint(Sketcher.Constraint("Vertical", 0))
sketch13.addConstraint(Sketcher.Constraint("Horizontal", 1))
sketch13.addConstraint(Sketcher.Constraint("Vertical", 2))
sketch13.addConstraint(Sketcher.Constraint("Horizontal", 4))
sketch13.addConstraint(Sketcher.Constraint("PointOnObject", 0, 2, -1))
sketch13.addConstraint(Sketcher.Constraint("Radius", 3, Q("0.04 in")))
sketch13.addConstraint(Sketcher.Constraint("DistanceX", 1, 1, 1, 2, Q("1.491 in")))
sketch13.addConstraint(Sketcher.Constraint("DistanceY", 0, 2, 0, 1, Q("0.4375 in")))
sketch13.addConstraint(Sketcher.Constraint("DistanceX", -1, 1, 0, 2, Q("3.18 in")))
revolution = doc.addObject("PartDesign::Revolution", "Revolution")
body.addObject(revolution)
revolution.Profile = sketch13
revolution.ReferenceAxis = (sketch13, ["H_Axis"])
revolution.Angle = 360

# Sketch on XY plane
sketch14 = doc.addObject("Sketcher::SketchObject", "Sketch013")
body.addObject(sketch14)
sketch14.AttachmentSupport = (doc.XY_Plane, [""])
sketch14.MapMode = "FlatFace"
sketch14.addGeometry(Part.LineSegment(Vector(102, -6, 0), Vector(119, -6, 0)), False)
sketch14.addGeometry(Part.LineSegment(Vector(119, -6, 0), Vector(119, 0, 0)), False)
sketch14.addGeometry(Part.LineSegment(Vector(119, 0, 0), Vector(98, 0, 0)), False)
sketch14.addGeometry(Part.LineSegment(Vector(98, 0, 0), Vector(102, -6, 0)), False)
sketch14.addConstraint(Sketcher.Constraint("Coincident", 0, 2, 1, 1))
sketch14.addConstraint(Sketcher.Constraint("Coincident", 1, 2, 2, 1))
sketch14.addConstraint(Sketcher.Constraint("Coincident", 2, 2, 3, 1))
sketch14.addConstraint(Sketcher.Constraint("Coincident", 3, 2, 0, 1))
sketch14.addConstraint(Sketcher.Constraint("Horizontal", 0))
sketch14.addConstraint(Sketcher.Constraint("Vertical", 1))
sketch14.addConstraint(Sketcher.Constraint("Horizontal", 2))
sketch14.addConstraint(Sketcher.Constraint("PointOnObject", 1, 2, -1))
sketch14.addConstraint(Sketcher.Constraint("Angle", 3, Q("-59 deg")))
sketch14.addConstraint(Sketcher.Constraint("DistanceX", 0, 1, 0, 2, Q("0.67 in")))
sketch14.addConstraint(Sketcher.Constraint("DistanceY", 1, 1, 1, 2, Q("0.2265 in")))
sketch14.addConstraint(Sketcher.Constraint("DistanceX", -1, 1, 0, 2, Q("4.671 in")))
groove8 = doc.addObject("PartDesign::Groove", "Groove007")
body.addObject(groove8)
groove8.Profile = sketch14
groove8.ReferenceAxis = (sketch14, ["H_Axis"])
groove8.Angle = 360

# Sketch on XZ plane
sketch15 = doc.addObject("Sketcher::SketchObject", "Sketch014")
body.addObject(sketch15)
sketch15.AttachmentSupport = (doc.XZ_Plane, [""])
sketch15.MapMode = "FlatFace"
sketch15.AttachmentOffset = App.Placement(Vector(0, 0, 1.772 * 25.4), App.Rotation())
sketch15.addGeometry(Part.Circle(Vector(-16, 19, 0), Vector(0, 0, 1), 6), False)
sketch15.addConstraint(Sketcher.Constraint("Diameter", 0, Q("0.507 in")))
sketch15.addConstraint(Sketcher.Constraint("DistanceY", -1, 1, 0, 3, Q("0.75 in")))
sketch15.addConstraint(Sketcher.Constraint("DistanceX", 0, 3, -1, 1, Q("0.625 in")))
pad2 = doc.addObject("PartDesign::Pad", "Pad001")
body.addObject(pad2)
pad2.Profile = sketch15
pad2.Length = Q("0.065 in")

# Sketch on YZ plane
sketch16 = doc.addObject("Sketcher::SketchObject", "Sketch015")
body.addObject(sketch16)
sketch16.AttachmentSupport = (doc.YZ_Plane, [""])
sketch16.MapMode = "FlatFace"
sketch16.AttachmentOffset = App.Placement(Vector(0, 0, -1.25 * 25.4), App.Rotation())
sketch16.addGeometry(Part.Circle(Vector(-31.8, 19.1, 0), Vector(0, 0, 1), 4.8), False)
sketch16.addConstraint(Sketcher.Constraint("Diameter", 0, Q("0.378 in")))
sketch16.addConstraint(Sketcher.Constraint("DistanceX", 0, 3, -1, 1, Q("1.25 in")))
sketch16.addConstraint(Sketcher.Constraint("DistanceY", -1, 1, 0, 3, Q("0.75 in")))
pad3 = doc.addObject("PartDesign::Pad", "Pad002")
body.addObject(pad3)
pad3.Profile = sketch16
pad3.Length = Q("1.25 in")

# Sketch on an angled plane
sketch17 = doc.addObject("Sketcher::SketchObject", "Sketch016")
body.addObject(sketch17)
sketch17.Placement = App.Placement(Vector(114.681, 7.857724, -7.857724), App.Rotation(Vector(-1, 0, 0), Vector(0, 0.707106781, -0.707106781), Vector(0, -0.707106781, -0.707106781), "ZXY"))
sketch17.addGeometry(Part.LineSegment(Vector(2.4, 0, 0), Vector(0, 0, 0)), False)
sketch17.addGeometry(Part.LineSegment(Vector(0, 0, 0), Vector(0, -2.4, 0)), False)
sketch17.addGeometry(Part.LineSegment(Vector(0, -2.4, 0), Vector(2.4, 0, 0)), False)
sketch17.addConstraint(Sketcher.Constraint("Coincident", 0, 2, 1, 1))
sketch17.addConstraint(Sketcher.Constraint("Coincident", 1, 2, 2, 1))
sketch17.addConstraint(Sketcher.Constraint("Coincident", 2, 2, 0, 1))
sketch17.addConstraint(Sketcher.Constraint("Horizontal", 0))
sketch17.addConstraint(Sketcher.Constraint("Vertical", 1))
sketch17.addConstraint(Sketcher.Constraint("Coincident", 0, 2, -1, 1))
sketch17.addConstraint(Sketcher.Constraint("Equal", 0, 1))
sketch17.addConstraint(Sketcher.Constraint("DistanceX", 0, 2, 0, 1, Q("0.095 in")))
groove9 = doc.addObject("PartDesign::Groove", "Groove008")
body.addObject(groove9)
groove9.Profile = sketch17
groove9.ReferenceAxis = (sketch17, ["V_Axis"])
groove9.Angle = 360
doc.recompute()

polarpattern = doc.addObject("PartDesign::PolarPattern", "PolarPattern")
body.addObject(polarpattern)
polarpattern.Originals = [groove9]
polarpattern.Axis = (doc.X_Axis, [""])
polarpattern.Angle = 360
polarpattern.Occurrences = 4
body.Tip = polarpattern

# Sketch on XZ plane
sketch18 = doc.addObject("Sketcher::SketchObject", "Sketch017")
body.addObject(sketch18)
sketch18.AttachmentSupport = (doc.XZ_Plane, [""])
sketch18.MapMode = "FlatFace"
sketch18.AttachmentOffset = App.Placement(Vector(0, 0, -0.688 * 25.4), App.Rotation())
sketch18.addGeometry(Part.LineSegment(Vector(-31.8, 25.4, 0), Vector(0, 25.4, 0)), False)
sketch18.addGeometry(Part.LineSegment(Vector(0, 25.4, 0), Vector(0, 21, 0)), False)
sketch18.addGeometry(Part.LineSegment(Vector(0, 21, 0), Vector(-31.8, 21, 0)), False)
sketch18.addGeometry(Part.LineSegment(Vector(-31.8, 21, 0), Vector(-31.8, 25.4, 0)), False)
sketch18.addGeometry(Part.LineSegment(Vector(-31.8, 25.4, 0), Vector(0, 25.4, 0)), True)  # axis
sketch18.addConstraint(Sketcher.Constraint("Coincident", 0, 2, 1, 1))
sketch18.addConstraint(Sketcher.Constraint("Coincident", 1, 2, 2, 1))
sketch18.addConstraint(Sketcher.Constraint("Coincident", 2, 2, 3, 1))
sketch18.addConstraint(Sketcher.Constraint("Coincident", 3, 2, 0, 1))
sketch18.addConstraint(Sketcher.Constraint("Horizontal", 0))
sketch18.addConstraint(Sketcher.Constraint("Vertical", 1))
sketch18.addConstraint(Sketcher.Constraint("Horizontal", 2))
sketch18.addConstraint(Sketcher.Constraint("Vertical", 3))
sketch18.addConstraint(Sketcher.Constraint("Horizontal", 4))
sketch18.addConstraint(Sketcher.Constraint("Coincident", 4, 1, 3, 2))
sketch18.addConstraint(Sketcher.Constraint("PointOnObject", 0, 2, -2))
sketch18.addConstraint(Sketcher.Constraint("PointOnObject", 4, 2, -2))
sketch18.addConstraint(Sketcher.Constraint("DistanceY", -1, 1, 0, 2, Q("1 in")))
sketch18.addConstraint(Sketcher.Constraint("DistanceX", 0, 1, 0, 2, Q("1.25 in")))
sketch18.addConstraint(Sketcher.Constraint("DistanceY", 1, 2, 1, 1, Q("0.1715 in")))
groove10 = doc.addObject("PartDesign::Groove", "Groove009")
body.addObject(groove10)
groove10.Profile = sketch18
groove10.ReferenceAxis = (sketch18, ["Axis0"])
groove10.Angle = 360
doc.recompute()

datumline = doc.addObject("PartDesign::Line", "DatumLine")
body.addObject(datumline)
datumline.Placement = App.Placement(Vector(0, 0, 0), App.Rotation(Vector(0, 0, 1), Vector(0, -0.885120032, -0.465362793)))
linearpattern = doc.addObject("PartDesign::LinearPattern", "LinearPattern")
body.addObject(linearpattern)
linearpattern.Originals = [groove10]
linearpattern.Direction = (datumline, [""])
linearpattern.Mode = "offset"
linearpattern.Offset = 54.581072
linearpattern.Occurrences = 2
body.Tip = linearpattern
doc.recompute()

linearpattern2 = doc.addObject("PartDesign::LinearPattern", "LinearPattern001")
body.addObject(linearpattern2)
linearpattern2.Originals = [groove10]
linearpattern2.Direction = (doc.Y_Axis, [""])
linearpattern2.Mode = "offset"
linearpattern2.Offset = Q("1.376 in")
linearpattern2.Occurrences = 2
linearpattern2.Reversed = True
body.Tip = linearpattern2
doc.recompute()

linearpattern3 = doc.addObject("PartDesign::LinearPattern", "LinearPattern002")
body.addObject(linearpattern3)
linearpattern3.Originals = [groove10]
linearpattern3.Direction = (doc.Z_Axis, [""])
linearpattern3.Mode = "offset"
linearpattern3.Offset = Q("2 in")
linearpattern3.Occurrences = 2
linearpattern3.Reversed = True
body.Tip = linearpattern3
doc.recompute()

datumline2 = doc.addObject("PartDesign::Line", "DatumLine001")
body.addObject(datumline2)
datumline2.Placement = App.Placement(Vector(0, 0, 0), App.Rotation(Vector(0, 0, 1), Vector(0, -0.566808506, -0.823849572)))
linearpattern4 = doc.addObject("PartDesign::LinearPattern", "LinearPattern003")
body.addObject(linearpattern4)
linearpattern4.Originals = [groove10]
linearpattern4.Direction = (datumline2, [""])
linearpattern4.Mode = "offset"
linearpattern4.Offset = 61.661742
linearpattern4.Occurrences = 2
body.Tip = linearpattern4
body2 = doc.addObject("PartDesign::Body", "Body001")

# Sketch on XZ plane
sketch19 = doc.addObject("Sketcher::SketchObject", "Sketch018")
body2.addObject(sketch19)
sketch19.AttachmentSupport = (doc.getObject("XZ_Plane001"), [""])
sketch19.MapMode = "FlatFace"
sketch19.AttachmentOffset = App.Placement(Vector(0, 0, 1.25 * 25.4), App.Rotation())
sketch19.addGeometry(Part.Circle(Vector(-0.9, -25.2, 0), Vector(0, 0, 1), 1.8), False)
sketch19.addGeometry(Part.LineSegment(Vector(-0.9, -19.1, 0), Vector(9.1, -19.1, 0)), True)  # axis
sketch19.addConstraint(Sketcher.Constraint("Horizontal", 1))
sketch19.addConstraint(Sketcher.Constraint("Vertical", 0, 3, 1, 1))
sketch19.addConstraint(Sketcher.Constraint("Diameter", 0, Q("0.139 in")))
sketch19.addConstraint(Sketcher.Constraint("DistanceY", 1, 1, -1, 1, Q("0.75 in")))
sketch19.addConstraint(Sketcher.Constraint("DistanceY", 0, 3, -1, 1, Q("0.993 in")))
sketch19.addConstraint(Sketcher.Constraint("DistanceX", 1, 1, 1, 2, Q("10 mm")))
sketch19.addConstraint(Sketcher.Constraint("DistanceX", 0, 3, -1, 1, Q("0.0355 in")))
revolution2 = doc.addObject("PartDesign::Revolution", "Revolution001")
body2.addObject(revolution2)
revolution2.Profile = sketch19
revolution2.ReferenceAxis = (sketch19, ["Axis0"])
revolution2.Angle = 360
body3 = doc.addObject("PartDesign::Body", "Body002")

# Sketch on XZ plane
sketch20 = doc.addObject("Sketcher::SketchObject", "Sketch019")
body3.addObject(sketch20)
sketch20.AttachmentSupport = (doc.getObject("XZ_Plane002"), [""])
sketch20.MapMode = "FlatFace"
sketch20.AttachmentOffset = App.Placement(Vector(0, 0, 1.25 * 25.4), App.Rotation())
sketch20.addGeometry(Part.Circle(Vector(-30.8, -25.2, 0), Vector(0, 0, 1), 1.8), False)
sketch20.addGeometry(Part.LineSegment(Vector(-30.8, -19.1, 0), Vector(-20.8, -19.1, 0)), True)  # axis
sketch20.addConstraint(Sketcher.Constraint("Horizontal", 1))
sketch20.addConstraint(Sketcher.Constraint("Vertical", 0, 3, 1, 1))
sketch20.addConstraint(Sketcher.Constraint("Diameter", 0, Q("0.139 in")))
sketch20.addConstraint(Sketcher.Constraint("DistanceY", 1, 1, -1, 1, Q("0.75 in")))
sketch20.addConstraint(Sketcher.Constraint("DistanceY", 0, 3, -1, 1, Q("0.993 in")))
sketch20.addConstraint(Sketcher.Constraint("DistanceX", 1, 1, 1, 2, Q("10 mm")))
sketch20.addConstraint(Sketcher.Constraint("DistanceX", 0, 3, -1, 1, Q("1.2145 in")))
revolution3 = doc.addObject("PartDesign::Revolution", "Revolution002")
body3.addObject(revolution3)
revolution3.Profile = sketch20
revolution3.ReferenceAxis = (sketch20, ["Axis0"])
revolution3.Angle = 360

doc.recompute()
